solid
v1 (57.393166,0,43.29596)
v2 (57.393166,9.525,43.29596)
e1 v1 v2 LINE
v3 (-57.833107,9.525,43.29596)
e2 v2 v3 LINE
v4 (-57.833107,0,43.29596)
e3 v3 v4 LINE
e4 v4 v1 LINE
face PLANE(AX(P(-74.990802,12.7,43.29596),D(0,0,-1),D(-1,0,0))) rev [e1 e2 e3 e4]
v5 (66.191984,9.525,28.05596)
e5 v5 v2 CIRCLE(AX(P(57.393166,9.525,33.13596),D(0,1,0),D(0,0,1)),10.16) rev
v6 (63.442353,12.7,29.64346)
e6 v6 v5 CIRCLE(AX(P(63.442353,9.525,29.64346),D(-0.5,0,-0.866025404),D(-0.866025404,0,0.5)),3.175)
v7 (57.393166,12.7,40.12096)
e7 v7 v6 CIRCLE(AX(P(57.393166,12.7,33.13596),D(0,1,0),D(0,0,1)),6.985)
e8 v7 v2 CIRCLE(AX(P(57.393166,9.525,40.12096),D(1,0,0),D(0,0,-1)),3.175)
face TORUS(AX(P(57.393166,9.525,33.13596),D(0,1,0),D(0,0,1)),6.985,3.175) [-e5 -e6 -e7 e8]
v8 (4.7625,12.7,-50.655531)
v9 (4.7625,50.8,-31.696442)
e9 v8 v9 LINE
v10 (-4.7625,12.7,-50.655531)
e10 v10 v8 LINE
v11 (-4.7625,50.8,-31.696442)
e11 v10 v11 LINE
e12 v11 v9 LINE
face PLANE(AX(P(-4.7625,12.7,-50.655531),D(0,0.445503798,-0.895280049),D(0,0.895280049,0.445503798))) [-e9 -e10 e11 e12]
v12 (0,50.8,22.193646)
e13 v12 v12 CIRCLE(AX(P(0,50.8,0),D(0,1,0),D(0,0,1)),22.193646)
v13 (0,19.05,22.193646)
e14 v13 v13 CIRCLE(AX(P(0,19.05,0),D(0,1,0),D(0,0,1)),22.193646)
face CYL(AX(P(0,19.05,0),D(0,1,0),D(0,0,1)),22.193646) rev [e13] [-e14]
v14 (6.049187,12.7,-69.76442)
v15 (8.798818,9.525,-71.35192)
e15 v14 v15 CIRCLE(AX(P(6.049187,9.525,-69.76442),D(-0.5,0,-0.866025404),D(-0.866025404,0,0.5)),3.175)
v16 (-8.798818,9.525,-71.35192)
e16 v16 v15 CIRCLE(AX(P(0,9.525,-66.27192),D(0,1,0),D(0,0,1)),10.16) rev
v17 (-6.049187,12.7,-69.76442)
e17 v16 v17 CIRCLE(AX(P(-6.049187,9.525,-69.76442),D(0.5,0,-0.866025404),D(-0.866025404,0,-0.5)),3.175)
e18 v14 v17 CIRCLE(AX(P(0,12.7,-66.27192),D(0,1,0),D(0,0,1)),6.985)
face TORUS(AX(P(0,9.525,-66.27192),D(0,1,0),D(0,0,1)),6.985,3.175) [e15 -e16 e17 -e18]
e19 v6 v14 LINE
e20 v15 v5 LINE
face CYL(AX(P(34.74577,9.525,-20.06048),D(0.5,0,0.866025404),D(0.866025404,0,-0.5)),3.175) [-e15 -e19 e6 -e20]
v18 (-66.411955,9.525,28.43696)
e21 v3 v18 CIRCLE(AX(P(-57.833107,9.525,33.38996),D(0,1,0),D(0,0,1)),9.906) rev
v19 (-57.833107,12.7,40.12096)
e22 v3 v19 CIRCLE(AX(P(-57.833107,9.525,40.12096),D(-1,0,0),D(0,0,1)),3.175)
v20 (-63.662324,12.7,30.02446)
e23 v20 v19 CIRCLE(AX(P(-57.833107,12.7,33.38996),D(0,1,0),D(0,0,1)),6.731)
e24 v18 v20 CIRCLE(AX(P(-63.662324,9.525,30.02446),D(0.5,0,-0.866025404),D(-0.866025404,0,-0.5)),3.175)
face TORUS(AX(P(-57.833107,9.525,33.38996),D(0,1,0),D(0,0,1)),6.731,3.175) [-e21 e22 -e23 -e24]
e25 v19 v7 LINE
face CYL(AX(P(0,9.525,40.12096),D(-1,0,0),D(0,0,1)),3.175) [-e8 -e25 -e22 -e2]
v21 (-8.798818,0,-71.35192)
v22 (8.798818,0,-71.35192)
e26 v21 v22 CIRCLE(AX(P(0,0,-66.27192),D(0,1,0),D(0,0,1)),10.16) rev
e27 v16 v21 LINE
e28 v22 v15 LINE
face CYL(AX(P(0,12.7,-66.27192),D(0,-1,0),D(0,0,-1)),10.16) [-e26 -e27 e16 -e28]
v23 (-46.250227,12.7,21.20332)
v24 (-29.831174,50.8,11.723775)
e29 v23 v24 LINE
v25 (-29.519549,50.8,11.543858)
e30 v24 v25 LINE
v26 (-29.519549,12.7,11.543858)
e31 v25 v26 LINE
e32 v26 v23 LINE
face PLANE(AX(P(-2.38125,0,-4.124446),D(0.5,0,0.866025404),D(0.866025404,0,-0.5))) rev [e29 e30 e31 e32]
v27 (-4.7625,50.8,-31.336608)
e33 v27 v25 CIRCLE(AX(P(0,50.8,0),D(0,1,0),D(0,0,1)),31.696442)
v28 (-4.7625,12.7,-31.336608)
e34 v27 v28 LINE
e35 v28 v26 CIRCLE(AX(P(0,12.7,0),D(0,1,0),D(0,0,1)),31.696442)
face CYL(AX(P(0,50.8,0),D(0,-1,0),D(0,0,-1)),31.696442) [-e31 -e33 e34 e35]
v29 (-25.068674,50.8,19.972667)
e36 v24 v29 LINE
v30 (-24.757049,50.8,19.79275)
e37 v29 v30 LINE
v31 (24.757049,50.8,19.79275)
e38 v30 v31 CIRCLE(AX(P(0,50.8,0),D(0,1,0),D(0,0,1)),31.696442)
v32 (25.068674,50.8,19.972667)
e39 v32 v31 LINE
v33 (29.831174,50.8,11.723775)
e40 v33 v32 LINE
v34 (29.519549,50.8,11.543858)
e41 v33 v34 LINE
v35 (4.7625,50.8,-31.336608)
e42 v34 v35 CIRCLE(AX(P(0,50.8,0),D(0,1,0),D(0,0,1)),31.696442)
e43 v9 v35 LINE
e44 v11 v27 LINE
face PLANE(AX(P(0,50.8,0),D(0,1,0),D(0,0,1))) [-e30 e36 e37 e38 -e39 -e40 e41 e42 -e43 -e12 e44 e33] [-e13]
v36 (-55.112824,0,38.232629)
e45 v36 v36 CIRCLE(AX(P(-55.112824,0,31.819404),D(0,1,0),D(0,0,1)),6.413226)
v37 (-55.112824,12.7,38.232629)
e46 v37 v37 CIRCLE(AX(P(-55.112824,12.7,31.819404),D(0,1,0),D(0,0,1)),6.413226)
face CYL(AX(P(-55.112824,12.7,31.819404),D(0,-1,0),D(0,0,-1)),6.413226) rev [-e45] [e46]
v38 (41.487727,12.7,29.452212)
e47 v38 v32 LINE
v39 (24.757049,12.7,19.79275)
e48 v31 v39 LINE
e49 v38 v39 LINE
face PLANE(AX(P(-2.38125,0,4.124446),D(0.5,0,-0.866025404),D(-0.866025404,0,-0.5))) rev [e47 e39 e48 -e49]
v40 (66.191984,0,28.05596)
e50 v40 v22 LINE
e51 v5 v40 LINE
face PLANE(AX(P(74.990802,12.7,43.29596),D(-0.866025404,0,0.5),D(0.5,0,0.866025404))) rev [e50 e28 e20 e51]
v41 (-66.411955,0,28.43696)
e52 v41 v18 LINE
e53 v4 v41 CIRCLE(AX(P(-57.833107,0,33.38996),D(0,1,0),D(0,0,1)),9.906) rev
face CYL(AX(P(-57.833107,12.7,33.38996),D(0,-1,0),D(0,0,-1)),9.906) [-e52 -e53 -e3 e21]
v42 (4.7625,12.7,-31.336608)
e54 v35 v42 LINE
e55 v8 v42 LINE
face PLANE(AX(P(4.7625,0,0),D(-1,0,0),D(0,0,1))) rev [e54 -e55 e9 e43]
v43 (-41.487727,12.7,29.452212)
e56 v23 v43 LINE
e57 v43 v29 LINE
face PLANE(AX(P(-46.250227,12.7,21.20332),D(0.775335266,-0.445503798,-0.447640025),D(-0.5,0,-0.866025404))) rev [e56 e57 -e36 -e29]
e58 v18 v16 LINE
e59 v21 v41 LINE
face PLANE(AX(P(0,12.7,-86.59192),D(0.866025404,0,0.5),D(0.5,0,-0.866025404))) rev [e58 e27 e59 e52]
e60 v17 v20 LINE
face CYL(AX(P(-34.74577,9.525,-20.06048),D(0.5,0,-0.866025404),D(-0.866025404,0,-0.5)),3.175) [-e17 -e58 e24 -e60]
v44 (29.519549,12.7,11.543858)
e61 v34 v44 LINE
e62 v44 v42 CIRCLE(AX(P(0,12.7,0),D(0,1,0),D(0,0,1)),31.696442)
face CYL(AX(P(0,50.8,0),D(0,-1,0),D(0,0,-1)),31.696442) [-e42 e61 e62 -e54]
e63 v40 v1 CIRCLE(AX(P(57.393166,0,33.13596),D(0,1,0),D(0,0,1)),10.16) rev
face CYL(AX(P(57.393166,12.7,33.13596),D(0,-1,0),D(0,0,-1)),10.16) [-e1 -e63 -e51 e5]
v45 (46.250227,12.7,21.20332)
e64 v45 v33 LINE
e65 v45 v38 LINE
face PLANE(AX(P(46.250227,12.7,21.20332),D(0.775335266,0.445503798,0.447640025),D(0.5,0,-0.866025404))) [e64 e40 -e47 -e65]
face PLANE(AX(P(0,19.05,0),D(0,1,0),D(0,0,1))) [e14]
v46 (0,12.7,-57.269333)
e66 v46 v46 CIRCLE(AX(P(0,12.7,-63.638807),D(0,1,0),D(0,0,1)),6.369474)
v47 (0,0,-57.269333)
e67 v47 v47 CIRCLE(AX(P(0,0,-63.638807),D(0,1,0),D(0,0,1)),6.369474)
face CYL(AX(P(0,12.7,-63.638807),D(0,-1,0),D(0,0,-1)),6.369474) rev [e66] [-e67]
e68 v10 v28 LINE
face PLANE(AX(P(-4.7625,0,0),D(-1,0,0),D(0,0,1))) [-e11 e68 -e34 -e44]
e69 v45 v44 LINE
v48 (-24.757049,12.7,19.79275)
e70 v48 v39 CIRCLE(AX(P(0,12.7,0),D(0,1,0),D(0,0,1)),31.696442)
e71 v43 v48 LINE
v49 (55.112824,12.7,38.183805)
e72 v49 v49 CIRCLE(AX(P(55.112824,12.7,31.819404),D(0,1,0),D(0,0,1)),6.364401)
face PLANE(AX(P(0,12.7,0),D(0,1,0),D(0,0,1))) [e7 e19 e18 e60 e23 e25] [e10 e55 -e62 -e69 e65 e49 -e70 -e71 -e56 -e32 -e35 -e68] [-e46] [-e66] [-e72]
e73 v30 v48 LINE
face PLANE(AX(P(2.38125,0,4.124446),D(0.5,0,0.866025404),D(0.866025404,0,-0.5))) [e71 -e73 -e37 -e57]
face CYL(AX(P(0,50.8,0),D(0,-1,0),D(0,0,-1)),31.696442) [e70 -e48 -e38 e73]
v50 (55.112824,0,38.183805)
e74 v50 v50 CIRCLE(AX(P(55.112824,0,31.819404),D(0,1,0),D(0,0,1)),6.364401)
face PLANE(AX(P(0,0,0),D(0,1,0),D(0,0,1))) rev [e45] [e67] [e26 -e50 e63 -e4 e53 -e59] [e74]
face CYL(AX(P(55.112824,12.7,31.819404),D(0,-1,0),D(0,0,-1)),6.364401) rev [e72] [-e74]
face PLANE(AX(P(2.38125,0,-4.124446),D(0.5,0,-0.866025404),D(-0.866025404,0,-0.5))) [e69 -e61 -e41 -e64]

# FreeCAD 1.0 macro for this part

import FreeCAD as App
import Part
import Sketcher
from FreeCAD import Vector
Q = App.Units.Quantity


def edges_at(feature, points):
    """Names of the edges that pass closest to the given points."""
    edges = feature.Shape.Edges
    near = lambda p: min(range(len(edges)), key=lambda i: edges[i].distToShape(Part.Vertex(*p))[0])
    return sorted({f"Edge{near(p) + 1}" for p in points})

doc = App.newDocument("Part")
body = doc.addObject("PartDesign::Body", "Body")

# Sketch on XZ plane
sketch1 = body.newObject("Sketcher::SketchObject", "Sketch")
sketch1.AttachmentSupport = (doc.getObject("XZ_Plane"), [""])
sketch1.MapMode = "FlatFace"
sketch1.addGeometry(Part.LineSegment(Vector(0, -86.59192, 0), Vector(-74.990802, 43.29596, 0)), False)
sketch1.addGeometry(Part.LineSegment(Vector(-74.990802, 43.29596, 0), Vector(74.990802, 43.29596, 0)), False)
sketch1.addGeometry(Part.LineSegment(Vector(74.990802, 43.29596, 0), Vector(0, -86.59192, 0)), False)
sketch1.addGeometry(Part.Circle(Vector(-55.112824, 31.819404, 0), Vector(0, 0, 1), 6.413226), False)
sketch1.addGeometry(Part.Circle(Vector(55.112824, 31.819404, 0), Vector(0, 0, 1), 6.364401), False)
sketch1.addGeometry(Part.Circle(Vector(0, -63.638807, 0), Vector(0, 0, 1), 6.369474), False)
sketch1.addConstraint(Sketcher.Constraint("Coincident", 0, 2, 1, 1))
sketch1.addConstraint(Sketcher.Constraint("Coincident", 1, 2, 2, 1))
sketch1.addConstraint(Sketcher.Constraint("Coincident", 2, 2, 0, 1))
sketch1.addConstraint(Sketcher.Constraint("Horizontal", 1))
sketch1.addConstraint(Sketcher.Constraint("Symmetric", 3, 3, 4, 3, -2))
sketch1.addConstraint(Sketcher.Constraint("PointOnObject", 5, 3, -2))
sketch1.addConstraint(Sketcher.Constraint("PointOnObject", 2, 2, -2))
sketch1.addConstraint(Sketcher.Constraint("Equal", 0, 2))
sketch1.addConstraint(Sketcher.Constraint("Angle", 0, Q("120 deg")))
sketch1.addConstraint(Sketcher.Constraint("Diameter", 3, Q("12.826451 mm")))
sketch1.addConstraint(Sketcher.Constraint("Diameter", 5, Q("12.738948 mm")))
sketch1.addConstraint(Sketcher.Constraint("Diameter", 4, Q("12.728803 mm")))
sketch1.addConstraint(Sketcher.Constraint("DistanceX", 1, 1, 1, 2, Q("149.981604 mm")))
sketch1.addConstraint(Sketcher.Constraint("DistanceY", -1, 1, 0, 2, Q("43.29596 mm")))
sketch1.addConstraint(Sketcher.Constraint("DistanceY", 5, 3, 3, 3, Q("95.458211 mm")))
sketch1.addConstraint(Sketcher.Constraint("DistanceX", 0, 2, 3, 3, Q("19.877979 mm")))
sketch1.addConstraint(Sketcher.Constraint("DistanceY", -1, 1, 3, 3, Q("31.819404 mm")))
pad1 = body.newObject("PartDesign::Pad", "Pad")
pad1.Profile = sketch1
pad1.Length = Q("0.5 in")
pad1.Reversed = True
doc.recompute()

fillet = body.newObject("PartDesign::Fillet", "Fillet")
fillet.Base = (pad1, edges_at(pad1, [(-74.991, 6.35, 43.296)]))
fillet.Radius = Q("0.39 in")
doc.recompute()

fillet2 = body.newObject("PartDesign::Fillet", "Fillet001")
fillet2.Base = (fillet, edges_at(fillet, [(74.991, 6.35, 43.296)]))
fillet2.Radius = Q("0.4 in")
doc.recompute()

fillet3 = body.newObject("PartDesign::Fillet", "Fillet002")
fillet3.Base = (fillet2, edges_at(fillet2, [(0, 6.35, -86.592)]))
fillet3.Radius = Q("0.4 in")
doc.recompute()

fillet4 = body.newObject("PartDesign::Fillet", "Fillet003")
fillet4.Base = (fillet3, edges_at(fillet3, [
    (-0.22, 12.7, 43.296),
    (-66.412, 12.7, 38.343),
    (37.495, 12.7, -21.648),
    (66.192, 12.7, 38.216),
    (-37.605, 12.7, -21.457),
    (0, 12.7, -76.432),
]))
fillet4.Radius = Q("0.125 in")

# Sketch on XZ plane
sketch2 = body.newObject("Sketcher::SketchObject", "Sketch001")
sketch2.AttachmentSupport = (doc.getObject("XZ_Plane"), [""])
sketch2.MapMode = "FlatFace"
sketch2.AttachmentOffset = App.Placement(Vector(0, 0, -0.5 * 25.4), App.Rotation())
sketch2.addGeometry(Part.Circle(Vector(0, 0, 0), Vector(0, 0, 1), 31.696442), False)
sketch2.addConstraint(Sketcher.Constraint("Coincident", 0, 3, -1, 1))
sketch2.addConstraint(Sketcher.Constraint("Diameter", 0, Q("63.392883 mm")))
pad2 = body.newObject("PartDesign::Pad", "Pad001")
pad2.Profile = sketch2
pad2.Length = Q("1.5 in")
pad2.Reversed = True

# Sketch on XZ plane
sketch3 = body.newObject("Sketcher::SketchObject", "Sketch002")
sketch3.AttachmentSupport = (doc.getObject("XZ_Plane"), [""])
sketch3.MapMode = "FlatFace"
sketch3.AttachmentOffset = App.Placement(Vector(0, 0, -2 * 25.4), App.Rotation())
sketch3.addGeometry(Part.Circle(Vector(0, 0, 0), Vector(0, 0, 1), 22.193646), False)
sketch3.addConstraint(Sketcher.Constraint("Coincident", 0, 3, -1, 1))
sketch3.addConstraint(Sketcher.Constraint("Diameter", 0, Q("44.387291 mm")))
pocket1 = body.newObject("PartDesign::Pocket", "Pocket")
pocket1.Profile = sketch3
pocket1.Length = Q("1.25 in")
pocket1.Reversed = True

# Sketch on an angled plane
sketch4 = body.newObject("Sketcher::SketchObject", "Sketch003")
sketch4.Placement = App.Placement(Vector(0, 0, 0), App.Rotation(Vector(-0.866025404, 0, 0.5), Vector(0, 1, 0), Vector(-0.5, 0, -0.866025404), "ZXY"))
sketch4.addGeometry(Part.LineSegment(Vector(50.655531, 12.7, 0), Vector(31.696442, 50.8, 0)), False)
sketch4.addGeometry(Part.LineSegment(Vector(31.696442, 50.8, 0), Vector(28.066895, 50.8, 0)), False)
sketch4.addGeometry(Part.LineSegment(Vector(28.066895, 50.8, 0), Vector(28.066895, 12.7, 0)), False)
sketch4.addGeometry(Part.LineSegment(Vector(28.066895, 12.7, 0), Vector(50.655531, 12.7, 0)), False)
sketch4.addConstraint(Sketcher.Constraint("Coincident", 0, 2, 1, 1))
sketch4.addConstraint(Sketcher.Constraint("Coincident", 1, 2, 2, 1))
sketch4.addConstraint(Sketcher.Constraint("Coincident", 2, 2, 3, 1))
sketch4.addConstraint(Sketcher.Constraint("Coincident", 3, 2, 0, 1))
sketch4.addConstraint(Sketcher.Constraint("Horizontal", 1))
sketch4.addConstraint(Sketcher.Constraint("Vertical", 2))
sketch4.addConstraint(Sketcher.Constraint("Horizontal", 3))
sketch4.addConstraint(Sketcher.Constraint("DistanceY", 2, 2, 2, 1, Q("1.5 in")))
sketch4.addConstraint(Sketcher.Constraint("DistanceY", -1, 1, 0, 2, Q("2 in")))
sketch4.addConstraint(Sketcher.Constraint("DistanceX", 1, 2, 1, 1, Q("3.629546 mm")))
sketch4.addConstraint(Sketcher.Constraint("DistanceX", 3, 1, 3, 2, Q("22.588636 mm")))
sketch4.addConstraint(Sketcher.Constraint("DistanceX", -1, 1, 0, 2, Q("31.696442 mm")))
pad3 = body.newObject("PartDesign::Pad", "Pad002")
pad3.Profile = sketch4
pad3.Length = Q("0.1875 in")

# Sketch on an angled plane
sketch5 = body.newObject("Sketcher::SketchObject", "Sketch004")
sketch5.Placement = App.Placement(Vector(-2.38125, 0, -4.124446), App.Rotation(Vector(-0.866025404, 0, 0.5), Vector(0, 1, 0), Vector(-0.5, 0, -0.866025404), "ZXY"))
sketch5.addGeometry(Part.LineSegment(Vector(31.005254, 12.578942, 0), Vector(50.655531, 12.7, 0)), False)
sketch5.addGeometry(Part.LineSegment(Vector(50.655531, 12.7, 0), Vector(31.696442, 50.8, 0)), False)
sketch5.addGeometry(Part.LineSegment(Vector(31.696442, 50.8, 0), Vector(27.148658, 50.8, 0)), False)
sketch5.addGeometry(Part.LineSegment(Vector(27.148658, 50.8, 0), Vector(27.148658, 12.578942, 0)), False)
sketch5.addGeometry(Part.LineSegment(Vector(27.148658, 12.578942, 0), Vector(31.005254, 12.578942, 0)), False)
sketch5.addConstraint(Sketcher.Constraint("Coincident", 0, 2, 1, 1))
sketch5.addConstraint(Sketcher.Constraint("Coincident", 1, 2, 2, 1))
sketch5.addConstraint(Sketcher.Constraint("Coincident", 2, 2, 3, 1))
sketch5.addConstraint(Sketcher.Constraint("Coincident", 3, 2, 4, 1))
sketch5.addConstraint(Sketcher.Constraint("Coincident", 4, 2, 0, 1))
sketch5.addConstraint(Sketcher.Constraint("Horizontal", 2))
sketch5.addConstraint(Sketcher.Constraint("Vertical", 3))
sketch5.addConstraint(Sketcher.Constraint("Horizontal", 4))
sketch5.addConstraint(Sketcher.Constraint("DistanceY", -1, 1, 1, 2, Q("2 in")))
sketch5.addConstraint(Sketcher.Constraint("DistanceY", -1, 1, 0, 2, Q("0.5 in")))
sketch5.addConstraint(Sketcher.Constraint("DistanceY", 3, 2, 3, 1, Q("38.221058 mm")))
sketch5.addConstraint(Sketcher.Constraint("Distance", 0, Q("19.65065 mm")))
sketch5.addConstraint(Sketcher.Constraint("DistanceX", 2, 2, 2, 1, Q("4.547783 mm")))
sketch5.addConstraint(Sketcher.Constraint("DistanceX", 4, 1, 4, 2, Q("3.856596 mm")))
sketch5.addConstraint(Sketcher.Constraint("DistanceX", -1, 1, 0, 2, Q("50.655531 mm")))
pad4 = body.newObject("PartDesign::Pad", "Pad003")
pad4.Profile = sketch5
pad4.Length = Q("0.375 in")
pad4.Reversed = True
doc.recompute()

polarpattern = body.newObject("PartDesign::PolarPattern", "PolarPattern")
polarpattern.Originals = [pad4]
polarpattern.Axis = (doc.getObject("Y_Axis"), [""])
polarpattern.Angle = 360
polarpattern.Occurrences = 3
body.Tip = polarpattern

doc.recompute()
